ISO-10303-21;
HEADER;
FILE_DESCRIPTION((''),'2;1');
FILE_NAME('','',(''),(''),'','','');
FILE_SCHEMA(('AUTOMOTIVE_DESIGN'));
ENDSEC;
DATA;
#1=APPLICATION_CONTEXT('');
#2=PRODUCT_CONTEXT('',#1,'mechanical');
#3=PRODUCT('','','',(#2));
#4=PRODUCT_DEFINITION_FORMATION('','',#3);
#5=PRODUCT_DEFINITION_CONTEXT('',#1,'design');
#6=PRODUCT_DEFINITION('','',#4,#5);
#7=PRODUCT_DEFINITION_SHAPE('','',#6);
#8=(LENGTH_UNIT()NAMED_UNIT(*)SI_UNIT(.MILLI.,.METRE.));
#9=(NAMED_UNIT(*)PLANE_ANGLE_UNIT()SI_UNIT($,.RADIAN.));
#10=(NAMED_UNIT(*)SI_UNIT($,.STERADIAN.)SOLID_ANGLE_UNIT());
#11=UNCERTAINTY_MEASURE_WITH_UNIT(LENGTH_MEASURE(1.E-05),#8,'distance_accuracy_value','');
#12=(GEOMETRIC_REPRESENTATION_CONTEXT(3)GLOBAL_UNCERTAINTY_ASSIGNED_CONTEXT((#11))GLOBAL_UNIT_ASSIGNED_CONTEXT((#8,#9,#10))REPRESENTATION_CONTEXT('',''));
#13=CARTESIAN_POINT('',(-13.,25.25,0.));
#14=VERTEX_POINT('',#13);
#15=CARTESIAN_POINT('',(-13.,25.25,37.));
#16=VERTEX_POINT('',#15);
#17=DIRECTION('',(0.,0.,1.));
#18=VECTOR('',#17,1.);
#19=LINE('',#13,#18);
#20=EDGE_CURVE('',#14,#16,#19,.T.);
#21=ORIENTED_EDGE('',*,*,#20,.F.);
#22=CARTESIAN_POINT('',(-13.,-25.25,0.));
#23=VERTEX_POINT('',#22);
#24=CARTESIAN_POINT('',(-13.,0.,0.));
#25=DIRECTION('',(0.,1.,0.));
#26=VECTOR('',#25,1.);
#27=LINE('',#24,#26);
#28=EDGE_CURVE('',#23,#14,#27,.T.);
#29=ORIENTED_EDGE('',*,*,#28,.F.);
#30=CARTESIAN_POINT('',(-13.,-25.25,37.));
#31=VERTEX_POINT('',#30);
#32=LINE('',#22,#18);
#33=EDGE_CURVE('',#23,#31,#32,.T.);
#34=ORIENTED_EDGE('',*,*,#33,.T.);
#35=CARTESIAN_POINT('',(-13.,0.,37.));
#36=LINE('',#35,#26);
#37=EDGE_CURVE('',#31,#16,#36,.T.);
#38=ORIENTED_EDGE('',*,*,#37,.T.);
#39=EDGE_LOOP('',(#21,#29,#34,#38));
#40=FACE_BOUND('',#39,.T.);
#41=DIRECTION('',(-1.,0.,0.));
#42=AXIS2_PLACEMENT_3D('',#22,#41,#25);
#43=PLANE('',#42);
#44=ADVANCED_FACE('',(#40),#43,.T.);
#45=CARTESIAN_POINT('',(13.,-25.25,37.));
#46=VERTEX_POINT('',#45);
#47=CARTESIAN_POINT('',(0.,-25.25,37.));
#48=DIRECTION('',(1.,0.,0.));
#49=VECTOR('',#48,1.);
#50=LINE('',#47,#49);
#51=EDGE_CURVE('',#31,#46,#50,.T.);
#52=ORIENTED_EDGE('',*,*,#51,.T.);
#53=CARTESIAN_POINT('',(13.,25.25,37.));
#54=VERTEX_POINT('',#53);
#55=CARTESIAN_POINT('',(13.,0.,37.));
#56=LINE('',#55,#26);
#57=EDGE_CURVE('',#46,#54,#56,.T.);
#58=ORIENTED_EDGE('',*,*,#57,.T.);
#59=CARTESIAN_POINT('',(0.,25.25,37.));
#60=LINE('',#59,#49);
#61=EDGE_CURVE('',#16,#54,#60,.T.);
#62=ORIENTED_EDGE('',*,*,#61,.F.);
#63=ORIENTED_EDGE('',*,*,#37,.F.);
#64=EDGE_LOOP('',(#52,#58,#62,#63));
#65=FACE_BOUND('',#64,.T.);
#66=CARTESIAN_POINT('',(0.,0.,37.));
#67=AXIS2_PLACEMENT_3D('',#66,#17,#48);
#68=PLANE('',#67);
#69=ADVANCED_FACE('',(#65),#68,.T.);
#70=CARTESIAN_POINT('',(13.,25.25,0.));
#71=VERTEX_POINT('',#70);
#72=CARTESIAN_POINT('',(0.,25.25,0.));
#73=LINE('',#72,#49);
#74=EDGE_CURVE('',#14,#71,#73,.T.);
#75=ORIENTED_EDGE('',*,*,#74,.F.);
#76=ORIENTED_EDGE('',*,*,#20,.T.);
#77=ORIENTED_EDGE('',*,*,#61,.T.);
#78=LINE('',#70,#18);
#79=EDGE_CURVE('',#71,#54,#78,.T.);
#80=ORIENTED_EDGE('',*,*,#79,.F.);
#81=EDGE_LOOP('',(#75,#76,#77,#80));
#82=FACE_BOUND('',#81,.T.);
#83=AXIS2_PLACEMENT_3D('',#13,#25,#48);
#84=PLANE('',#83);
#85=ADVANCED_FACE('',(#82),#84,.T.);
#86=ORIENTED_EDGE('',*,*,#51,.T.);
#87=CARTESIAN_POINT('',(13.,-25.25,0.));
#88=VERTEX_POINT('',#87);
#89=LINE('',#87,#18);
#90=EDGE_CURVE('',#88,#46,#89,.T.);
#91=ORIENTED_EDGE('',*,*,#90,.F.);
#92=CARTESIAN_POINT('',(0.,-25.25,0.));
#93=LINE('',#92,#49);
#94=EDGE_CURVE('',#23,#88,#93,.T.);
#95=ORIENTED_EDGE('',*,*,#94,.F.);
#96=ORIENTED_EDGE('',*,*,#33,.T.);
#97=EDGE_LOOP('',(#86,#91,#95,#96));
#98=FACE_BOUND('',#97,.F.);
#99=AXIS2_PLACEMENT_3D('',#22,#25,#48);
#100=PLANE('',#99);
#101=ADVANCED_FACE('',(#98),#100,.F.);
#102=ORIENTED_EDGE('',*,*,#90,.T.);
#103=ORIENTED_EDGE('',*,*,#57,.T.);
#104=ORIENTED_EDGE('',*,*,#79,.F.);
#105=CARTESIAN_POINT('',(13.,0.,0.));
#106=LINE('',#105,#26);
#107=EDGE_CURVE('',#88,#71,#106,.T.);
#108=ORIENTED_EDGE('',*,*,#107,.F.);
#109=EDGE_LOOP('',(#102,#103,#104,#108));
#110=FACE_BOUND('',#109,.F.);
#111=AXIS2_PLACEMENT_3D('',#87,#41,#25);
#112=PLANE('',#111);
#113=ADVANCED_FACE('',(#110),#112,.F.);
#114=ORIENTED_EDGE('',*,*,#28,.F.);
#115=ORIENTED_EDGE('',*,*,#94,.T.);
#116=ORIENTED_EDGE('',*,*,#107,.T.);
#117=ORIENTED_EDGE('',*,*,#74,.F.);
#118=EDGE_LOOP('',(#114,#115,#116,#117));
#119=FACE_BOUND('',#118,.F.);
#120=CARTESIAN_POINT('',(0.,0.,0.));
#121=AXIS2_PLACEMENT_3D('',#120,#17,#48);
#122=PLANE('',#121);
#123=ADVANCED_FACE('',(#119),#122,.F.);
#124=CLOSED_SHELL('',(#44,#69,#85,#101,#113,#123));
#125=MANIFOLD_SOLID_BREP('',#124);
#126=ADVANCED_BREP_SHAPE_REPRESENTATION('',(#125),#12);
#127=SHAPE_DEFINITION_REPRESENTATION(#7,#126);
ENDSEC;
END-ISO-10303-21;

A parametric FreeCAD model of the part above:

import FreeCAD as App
import Part
import Sketcher

V = App.Vector
Q = App.Units.Quantity

doc = App.newDocument("Part")
body = doc.addObject("PartDesign::Body", "Body")

sketch1 = body.newObject("Sketcher::SketchObject", "Sketch")
sketch1.AttachmentSupport = (doc.getObject("XY_Plane"), [""])
sketch1.MapMode = "FlatFace"
sketch1.addGeometry([
    Part.LineSegment(V(-13, 25, 0), V(-13, -25, 0)),
    Part.LineSegment(V(-13, -25, 0), V(13, -25, 0)),
    Part.LineSegment(V(13, -25, 0), V(13, 25, 0)),
    Part.LineSegment(V(13, 25, 0), V(-13, 25, 0)),
], False)
sketch1.addConstraint([
    Sketcher.Constraint("Coincident", 0, 2, 1, 1),
    Sketcher.Constraint("Coincident", 1, 2, 2, 1),
    Sketcher.Constraint("Coincident", 2, 2, 3, 1),
    Sketcher.Constraint("Coincident", 3, 2, 0, 1),
    Sketcher.Constraint("Vertical", 0),
    Sketcher.Constraint("Horizontal", 1),
    Sketcher.Constraint("Vertical", 2),
    Sketcher.Constraint("Horizontal", 3),
    Sketcher.Constraint("Symmetric", 0, 2, 2, 2, -1, 1),
    Sketcher.Constraint("DistanceX", 1, 1, 1, 2, Q("26 mm")),
    Sketcher.Constraint("DistanceY", 0, 2, 0, 1, Q("50.5 mm")),
])
pad1 = body.newObject("PartDesign::Pad", "Pad")
pad1.Profile = sketch1
pad1.Length = 37

doc.recompute()
